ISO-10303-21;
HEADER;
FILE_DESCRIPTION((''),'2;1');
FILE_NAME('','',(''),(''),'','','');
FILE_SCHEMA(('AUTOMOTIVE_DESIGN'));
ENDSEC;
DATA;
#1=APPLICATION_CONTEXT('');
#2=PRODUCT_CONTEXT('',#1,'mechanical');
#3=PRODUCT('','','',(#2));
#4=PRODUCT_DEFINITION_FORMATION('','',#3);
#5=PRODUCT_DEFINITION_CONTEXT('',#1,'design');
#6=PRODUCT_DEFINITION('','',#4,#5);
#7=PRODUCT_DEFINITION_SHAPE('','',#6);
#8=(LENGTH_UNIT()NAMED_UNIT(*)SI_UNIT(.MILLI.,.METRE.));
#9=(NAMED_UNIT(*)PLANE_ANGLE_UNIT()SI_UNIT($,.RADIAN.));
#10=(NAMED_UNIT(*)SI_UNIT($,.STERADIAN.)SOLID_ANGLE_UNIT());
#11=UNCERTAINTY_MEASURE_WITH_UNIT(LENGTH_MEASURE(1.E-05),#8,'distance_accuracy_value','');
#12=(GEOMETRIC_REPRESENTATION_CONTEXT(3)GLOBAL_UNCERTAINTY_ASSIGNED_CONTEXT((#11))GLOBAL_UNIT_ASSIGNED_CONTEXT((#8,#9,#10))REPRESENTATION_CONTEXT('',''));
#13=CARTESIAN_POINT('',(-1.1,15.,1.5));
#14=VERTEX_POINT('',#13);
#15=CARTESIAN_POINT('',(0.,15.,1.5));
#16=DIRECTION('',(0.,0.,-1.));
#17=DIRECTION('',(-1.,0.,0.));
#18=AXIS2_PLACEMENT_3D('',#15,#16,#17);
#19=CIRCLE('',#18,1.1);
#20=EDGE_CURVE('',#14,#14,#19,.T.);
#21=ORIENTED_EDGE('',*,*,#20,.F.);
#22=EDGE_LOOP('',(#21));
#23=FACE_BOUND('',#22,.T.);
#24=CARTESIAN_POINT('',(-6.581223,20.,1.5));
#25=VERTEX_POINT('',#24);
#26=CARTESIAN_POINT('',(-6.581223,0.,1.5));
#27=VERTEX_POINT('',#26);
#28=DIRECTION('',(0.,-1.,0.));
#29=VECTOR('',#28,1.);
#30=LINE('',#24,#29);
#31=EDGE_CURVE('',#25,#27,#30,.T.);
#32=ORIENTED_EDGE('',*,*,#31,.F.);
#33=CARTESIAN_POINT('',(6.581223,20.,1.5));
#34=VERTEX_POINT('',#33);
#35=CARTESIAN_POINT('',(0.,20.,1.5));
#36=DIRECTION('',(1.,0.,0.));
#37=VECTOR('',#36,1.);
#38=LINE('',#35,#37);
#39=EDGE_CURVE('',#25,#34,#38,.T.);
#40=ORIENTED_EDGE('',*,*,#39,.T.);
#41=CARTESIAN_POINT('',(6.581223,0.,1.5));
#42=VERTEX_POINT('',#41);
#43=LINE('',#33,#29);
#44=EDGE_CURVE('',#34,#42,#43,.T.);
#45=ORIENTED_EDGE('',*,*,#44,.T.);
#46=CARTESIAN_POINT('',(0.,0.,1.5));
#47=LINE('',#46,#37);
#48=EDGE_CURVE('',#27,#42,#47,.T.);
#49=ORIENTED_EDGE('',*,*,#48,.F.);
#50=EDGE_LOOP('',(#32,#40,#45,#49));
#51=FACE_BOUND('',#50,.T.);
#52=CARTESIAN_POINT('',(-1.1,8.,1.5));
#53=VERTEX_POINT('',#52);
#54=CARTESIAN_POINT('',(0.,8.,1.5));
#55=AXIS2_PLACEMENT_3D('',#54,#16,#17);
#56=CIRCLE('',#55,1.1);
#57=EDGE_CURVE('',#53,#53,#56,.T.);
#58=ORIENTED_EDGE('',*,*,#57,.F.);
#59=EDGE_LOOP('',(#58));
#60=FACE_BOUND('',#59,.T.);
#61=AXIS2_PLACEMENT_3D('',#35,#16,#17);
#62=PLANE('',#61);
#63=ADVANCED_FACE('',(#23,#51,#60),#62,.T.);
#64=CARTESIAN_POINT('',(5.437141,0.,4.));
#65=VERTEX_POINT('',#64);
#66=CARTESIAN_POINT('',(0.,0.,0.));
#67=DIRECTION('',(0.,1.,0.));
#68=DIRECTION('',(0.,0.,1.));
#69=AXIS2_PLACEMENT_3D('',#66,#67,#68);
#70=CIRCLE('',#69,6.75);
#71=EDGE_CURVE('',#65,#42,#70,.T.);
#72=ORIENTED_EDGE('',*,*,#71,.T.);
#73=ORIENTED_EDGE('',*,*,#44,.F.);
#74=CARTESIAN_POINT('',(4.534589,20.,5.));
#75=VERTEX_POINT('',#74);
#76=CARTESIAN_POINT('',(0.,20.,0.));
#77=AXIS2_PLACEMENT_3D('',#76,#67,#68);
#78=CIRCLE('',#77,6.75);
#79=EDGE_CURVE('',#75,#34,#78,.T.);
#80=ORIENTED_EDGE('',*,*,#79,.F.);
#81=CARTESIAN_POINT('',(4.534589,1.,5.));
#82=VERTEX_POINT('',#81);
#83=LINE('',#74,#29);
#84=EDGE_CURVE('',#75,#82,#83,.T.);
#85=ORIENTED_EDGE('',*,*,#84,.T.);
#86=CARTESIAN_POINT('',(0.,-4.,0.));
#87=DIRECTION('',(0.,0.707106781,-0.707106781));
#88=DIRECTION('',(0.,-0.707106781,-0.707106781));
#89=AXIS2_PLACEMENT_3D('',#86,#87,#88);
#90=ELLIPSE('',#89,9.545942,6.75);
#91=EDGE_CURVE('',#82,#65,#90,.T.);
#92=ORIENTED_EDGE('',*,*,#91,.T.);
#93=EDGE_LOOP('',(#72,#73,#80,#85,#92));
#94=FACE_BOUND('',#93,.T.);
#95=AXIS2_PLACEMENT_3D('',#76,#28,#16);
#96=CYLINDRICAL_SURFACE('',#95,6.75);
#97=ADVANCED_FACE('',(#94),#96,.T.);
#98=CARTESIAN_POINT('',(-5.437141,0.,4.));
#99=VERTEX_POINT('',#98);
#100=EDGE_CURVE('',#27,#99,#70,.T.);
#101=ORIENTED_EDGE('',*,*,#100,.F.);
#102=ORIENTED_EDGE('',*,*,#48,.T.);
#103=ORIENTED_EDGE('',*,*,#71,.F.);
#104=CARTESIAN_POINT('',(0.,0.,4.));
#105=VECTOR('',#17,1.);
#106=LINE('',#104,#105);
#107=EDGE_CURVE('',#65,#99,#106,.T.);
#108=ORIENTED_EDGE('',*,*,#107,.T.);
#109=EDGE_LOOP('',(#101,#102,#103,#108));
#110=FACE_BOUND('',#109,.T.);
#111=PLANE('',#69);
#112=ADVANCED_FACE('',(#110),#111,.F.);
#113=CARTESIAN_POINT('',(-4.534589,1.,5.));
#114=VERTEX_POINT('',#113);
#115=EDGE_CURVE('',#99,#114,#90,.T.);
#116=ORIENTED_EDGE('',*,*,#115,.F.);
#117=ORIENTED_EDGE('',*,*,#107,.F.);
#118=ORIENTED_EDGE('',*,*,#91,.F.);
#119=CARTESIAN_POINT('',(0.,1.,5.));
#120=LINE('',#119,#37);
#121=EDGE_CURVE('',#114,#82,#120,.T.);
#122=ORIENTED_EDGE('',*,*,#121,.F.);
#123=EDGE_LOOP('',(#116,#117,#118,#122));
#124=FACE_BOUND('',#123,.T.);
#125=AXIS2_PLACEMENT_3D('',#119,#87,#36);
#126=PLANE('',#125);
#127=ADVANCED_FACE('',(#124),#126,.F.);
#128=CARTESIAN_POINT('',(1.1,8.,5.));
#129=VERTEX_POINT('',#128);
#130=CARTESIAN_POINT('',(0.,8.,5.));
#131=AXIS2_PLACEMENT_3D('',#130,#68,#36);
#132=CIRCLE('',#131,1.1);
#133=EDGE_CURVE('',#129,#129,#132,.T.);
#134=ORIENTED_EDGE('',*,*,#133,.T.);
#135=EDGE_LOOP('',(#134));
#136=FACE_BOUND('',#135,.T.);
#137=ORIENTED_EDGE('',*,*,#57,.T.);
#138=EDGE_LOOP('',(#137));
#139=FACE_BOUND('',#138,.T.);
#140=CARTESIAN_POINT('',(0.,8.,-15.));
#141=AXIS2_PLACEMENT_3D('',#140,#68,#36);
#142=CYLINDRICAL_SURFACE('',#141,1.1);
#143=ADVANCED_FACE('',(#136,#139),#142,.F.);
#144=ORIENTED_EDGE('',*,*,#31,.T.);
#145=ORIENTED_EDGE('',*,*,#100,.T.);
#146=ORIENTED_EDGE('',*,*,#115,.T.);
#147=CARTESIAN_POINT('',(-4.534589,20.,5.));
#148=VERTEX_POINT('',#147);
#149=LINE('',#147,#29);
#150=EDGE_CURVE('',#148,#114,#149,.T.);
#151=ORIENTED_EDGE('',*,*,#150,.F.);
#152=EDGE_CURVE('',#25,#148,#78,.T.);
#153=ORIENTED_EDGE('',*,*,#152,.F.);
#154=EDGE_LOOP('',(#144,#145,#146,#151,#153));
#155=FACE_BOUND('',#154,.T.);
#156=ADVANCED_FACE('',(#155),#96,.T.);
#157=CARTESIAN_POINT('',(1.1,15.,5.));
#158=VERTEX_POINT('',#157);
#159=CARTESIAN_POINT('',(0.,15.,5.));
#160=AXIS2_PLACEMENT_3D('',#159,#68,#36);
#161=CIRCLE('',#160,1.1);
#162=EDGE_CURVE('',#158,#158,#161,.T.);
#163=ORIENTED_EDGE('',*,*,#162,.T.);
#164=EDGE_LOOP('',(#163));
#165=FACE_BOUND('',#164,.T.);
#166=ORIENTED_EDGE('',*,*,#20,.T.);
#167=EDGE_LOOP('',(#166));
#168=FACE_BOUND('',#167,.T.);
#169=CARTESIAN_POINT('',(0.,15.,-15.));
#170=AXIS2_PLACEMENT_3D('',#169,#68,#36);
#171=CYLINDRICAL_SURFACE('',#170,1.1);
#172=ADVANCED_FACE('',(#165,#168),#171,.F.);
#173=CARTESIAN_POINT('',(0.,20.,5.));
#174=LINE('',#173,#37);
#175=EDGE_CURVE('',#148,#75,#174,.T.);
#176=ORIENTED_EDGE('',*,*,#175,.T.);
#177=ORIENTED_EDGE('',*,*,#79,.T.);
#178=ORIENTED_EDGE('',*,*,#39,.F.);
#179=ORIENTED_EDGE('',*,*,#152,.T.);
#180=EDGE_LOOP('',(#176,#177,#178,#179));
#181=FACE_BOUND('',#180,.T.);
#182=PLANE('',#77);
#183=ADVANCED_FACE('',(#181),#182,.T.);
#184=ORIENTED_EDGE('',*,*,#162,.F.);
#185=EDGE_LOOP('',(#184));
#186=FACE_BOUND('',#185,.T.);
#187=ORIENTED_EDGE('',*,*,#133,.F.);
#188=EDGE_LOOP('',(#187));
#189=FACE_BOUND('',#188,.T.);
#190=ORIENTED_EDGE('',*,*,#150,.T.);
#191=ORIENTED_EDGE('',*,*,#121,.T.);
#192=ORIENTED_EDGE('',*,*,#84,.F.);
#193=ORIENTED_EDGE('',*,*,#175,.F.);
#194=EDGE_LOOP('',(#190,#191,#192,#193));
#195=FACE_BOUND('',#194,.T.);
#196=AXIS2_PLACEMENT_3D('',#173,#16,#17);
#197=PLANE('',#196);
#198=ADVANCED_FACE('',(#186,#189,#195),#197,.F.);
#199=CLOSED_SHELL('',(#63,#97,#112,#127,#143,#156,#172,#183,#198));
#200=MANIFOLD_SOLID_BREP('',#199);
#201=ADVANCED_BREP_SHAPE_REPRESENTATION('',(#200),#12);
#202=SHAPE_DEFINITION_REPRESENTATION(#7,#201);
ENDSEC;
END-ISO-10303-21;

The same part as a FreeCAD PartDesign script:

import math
import FreeCAD as App
import Part
import Sketcher


def edges_at(feature, points):
    """Names of the edges that pass closest to the given points."""
    edges = feature.Shape.Edges
    near = lambda p: min(range(len(edges)), key=lambda i: edges[i].distToShape(Part.Vertex(*p))[0])
    return sorted({f"Edge{near(p) + 1}" for p in points})

doc = App.newDocument("Part")
body = doc.addObject("PartDesign::Body", "Body")

# Sketch on XZ plane
sketch1 = doc.addObject("Sketcher::SketchObject", "Sketch")
body.addObject(sketch1)
sketch1.AttachmentSupport = (doc.XZ_Plane, [""])
sketch1.MapMode = "FlatFace"
sketch1.addGeometry([
    Part.LineSegment(App.Vector(6.581223, 1.5, 0), App.Vector(-6.581223, 1.5, 0)),
    Part.ArcOfCircle(Part.Circle(App.Vector(0, 0, 0), App.Vector(0, 0, 1), 6.75), math.radians(132.205446), math.radians(167.160412)),
    Part.LineSegment(App.Vector(-4.534589, 5, 0), App.Vector(4.534589, 5, 0)),
    Part.ArcOfCircle(Part.Circle(App.Vector(0, 0, 0), App.Vector(0, 0, 1), 6.75), math.radians(12.839588), math.radians(47.794554)),
], False)
sketch1.addConstraint([
    Sketcher.Constraint("Coincident", 0, 2, 1, 2),
    Sketcher.Constraint("Coincident", 1, 1, 2, 1),
    Sketcher.Constraint("Coincident", 2, 2, 3, 2),
    Sketcher.Constraint("Coincident", 3, 1, 0, 1),
    Sketcher.Constraint("Horizontal", 0),
    Sketcher.Constraint("Horizontal", 2),
    Sketcher.Constraint("Coincident", 1, 3, -1, 1),
    Sketcher.Constraint("Coincident", 3, 3, -1, 1),
    Sketcher.Constraint("Equal", 1, 3),
    Sketcher.Constraint("Radius", 1, 6.75),
    Sketcher.Constraint("DistanceY", -1, 1, 1, 1, 5.0),
    Sketcher.Constraint("DistanceY", -1, 1, 0, 2, 1.5),
])
pad1 = doc.addObject("PartDesign::Pad", "Pad")
body.addObject(pad1)
pad1.Profile = sketch1
pad1.Length = 20
pad1.Reversed = True

# Sketch on XY plane
sketch2 = doc.addObject("Sketcher::SketchObject", "Sketch001")
body.addObject(sketch2)
sketch2.AttachmentSupport = (doc.XY_Plane, [""])
sketch2.MapMode = "FlatFace"
sketch2.AttachmentOffset = App.Placement(App.Vector(0, 0, 5), App.Rotation())
sketch2.addGeometry([
    Part.Circle(App.Vector(0, 15, 0), App.Vector(0, 0, 1), 1.1),
    Part.Circle(App.Vector(0, 8, 0), App.Vector(0, 0, 1), 1.1),
], False)
sketch2.addConstraint([
    Sketcher.Constraint("Equal", 0, 1),
    Sketcher.Constraint("PointOnObject", 0, 3, -2),
    Sketcher.Constraint("PointOnObject", 1, 3, -2),
    Sketcher.Constraint("Diameter", 0, 2.2),
    Sketcher.Constraint("DistanceY", -1, 1, 0, 3, 15.0),
    Sketcher.Constraint("DistanceY", -1, 1, 1, 3, 8.0),
])
pocket1 = doc.addObject("PartDesign::Pocket", "Pocket")
body.addObject(pocket1)
pocket1.Profile = sketch2
pocket1.Length = 20
doc.recompute()

chamfer = doc.addObject("PartDesign::Chamfer", "Chamfer")
body.addObject(chamfer)
chamfer.Base = (pocket1, edges_at(pocket1, [(0, 0, 5)]))
chamfer.Size = 1

doc.recompute()
